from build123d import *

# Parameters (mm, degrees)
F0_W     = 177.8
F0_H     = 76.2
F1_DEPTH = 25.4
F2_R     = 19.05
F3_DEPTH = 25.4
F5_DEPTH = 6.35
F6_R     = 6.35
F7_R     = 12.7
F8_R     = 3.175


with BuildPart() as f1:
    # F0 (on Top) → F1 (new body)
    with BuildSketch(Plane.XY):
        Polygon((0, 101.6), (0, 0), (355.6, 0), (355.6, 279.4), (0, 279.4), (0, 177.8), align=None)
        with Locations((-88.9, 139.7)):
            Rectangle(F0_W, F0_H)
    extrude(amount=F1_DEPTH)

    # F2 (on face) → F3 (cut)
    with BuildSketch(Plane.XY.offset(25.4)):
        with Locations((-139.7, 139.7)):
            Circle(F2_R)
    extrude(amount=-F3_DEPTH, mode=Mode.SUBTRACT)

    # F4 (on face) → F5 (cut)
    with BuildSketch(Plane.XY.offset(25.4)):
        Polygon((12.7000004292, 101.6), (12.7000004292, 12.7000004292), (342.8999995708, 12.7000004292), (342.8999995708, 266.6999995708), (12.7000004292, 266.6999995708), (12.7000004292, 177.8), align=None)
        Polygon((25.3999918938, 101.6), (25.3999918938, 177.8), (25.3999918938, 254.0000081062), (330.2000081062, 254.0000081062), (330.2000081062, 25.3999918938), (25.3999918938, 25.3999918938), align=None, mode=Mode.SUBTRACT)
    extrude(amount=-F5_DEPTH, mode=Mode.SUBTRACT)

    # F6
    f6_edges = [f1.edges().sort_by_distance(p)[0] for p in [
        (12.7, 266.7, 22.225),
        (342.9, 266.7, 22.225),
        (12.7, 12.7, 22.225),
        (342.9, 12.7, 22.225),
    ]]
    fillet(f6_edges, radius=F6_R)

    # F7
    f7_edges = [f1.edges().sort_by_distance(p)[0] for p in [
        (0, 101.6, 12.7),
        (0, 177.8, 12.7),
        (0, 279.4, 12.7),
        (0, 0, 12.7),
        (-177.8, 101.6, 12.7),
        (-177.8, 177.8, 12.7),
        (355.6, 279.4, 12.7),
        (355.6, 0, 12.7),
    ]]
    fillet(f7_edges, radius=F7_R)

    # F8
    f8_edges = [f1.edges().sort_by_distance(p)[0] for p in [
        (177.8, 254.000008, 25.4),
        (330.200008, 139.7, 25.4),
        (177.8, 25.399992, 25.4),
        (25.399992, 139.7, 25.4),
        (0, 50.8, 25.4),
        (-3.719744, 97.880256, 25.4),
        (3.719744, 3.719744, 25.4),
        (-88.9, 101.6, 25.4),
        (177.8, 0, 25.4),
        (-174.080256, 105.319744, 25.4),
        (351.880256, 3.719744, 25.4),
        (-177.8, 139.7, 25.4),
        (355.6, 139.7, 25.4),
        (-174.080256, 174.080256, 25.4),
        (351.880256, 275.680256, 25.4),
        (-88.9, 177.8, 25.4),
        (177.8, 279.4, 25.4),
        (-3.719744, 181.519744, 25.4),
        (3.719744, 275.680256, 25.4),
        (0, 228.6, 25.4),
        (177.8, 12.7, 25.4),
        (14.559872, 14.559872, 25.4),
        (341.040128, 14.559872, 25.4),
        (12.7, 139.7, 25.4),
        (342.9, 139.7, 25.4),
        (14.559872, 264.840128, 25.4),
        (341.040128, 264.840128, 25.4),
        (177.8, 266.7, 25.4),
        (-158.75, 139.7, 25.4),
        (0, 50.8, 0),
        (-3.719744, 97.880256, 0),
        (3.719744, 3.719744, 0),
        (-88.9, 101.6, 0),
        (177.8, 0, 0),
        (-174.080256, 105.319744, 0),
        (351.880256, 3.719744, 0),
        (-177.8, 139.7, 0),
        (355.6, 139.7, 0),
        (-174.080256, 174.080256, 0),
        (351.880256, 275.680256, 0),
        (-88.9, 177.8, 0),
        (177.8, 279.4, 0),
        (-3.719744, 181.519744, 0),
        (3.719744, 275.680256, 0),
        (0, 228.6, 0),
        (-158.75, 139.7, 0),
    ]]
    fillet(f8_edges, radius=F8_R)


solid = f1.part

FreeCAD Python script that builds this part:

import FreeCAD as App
import Part
import Sketcher
Q = App.Units.Quantity


def edges_at(feature, points):
    """Names of the edges that pass closest to the given points."""
    edges = feature.Shape.Edges
    near = lambda p: min(range(len(edges)), key=lambda i: edges[i].distToShape(Part.Vertex(*p))[0])
    return sorted({f"Edge{near(p) + 1}" for p in points})


def add_polygon(sketch, points):
    """Adds a closed chain of lines whose ends are joined by coincident constraints."""
    first, n = sketch.GeometryCount, len(points)
    for a, b in zip(points, points[1:] + points[:1]):
        sketch.addGeometry(Part.LineSegment(App.Vector(*a, 0), App.Vector(*b, 0)), False)
    for i in range(n):
        sketch.addConstraint(Sketcher.Constraint("Coincident", first + i, 2, first + (i + 1) % n, 1))

doc = App.newDocument("Part")
body = doc.addObject("PartDesign::Body", "Body")

# Sketch on XY plane
sketch1 = body.newObject("Sketcher::SketchObject", "Sketch")
sketch1.AttachmentSupport = (doc.getObject("XY_Plane"), [""])
sketch1.MapMode = "FlatFace"
add_polygon(sketch1, [(0, 0), (356, 0), (356, 279), (0, 279), (0, 178), (-178, 178), (-178, 102), (0, 102)])  # lines 0-7
sketch1.addConstraint(Sketcher.Constraint("Horizontal", 0))
sketch1.addConstraint(Sketcher.Constraint("Vertical", 1))
sketch1.addConstraint(Sketcher.Constraint("Horizontal", 2))
sketch1.addConstraint(Sketcher.Constraint("Vertical", 3))
sketch1.addConstraint(Sketcher.Constraint("Horizontal", 4))
sketch1.addConstraint(Sketcher.Constraint("Vertical", 5))
sketch1.addConstraint(Sketcher.Constraint("Horizontal", 6))
sketch1.addConstraint(Sketcher.Constraint("Vertical", 7))
sketch1.addConstraint(Sketcher.Constraint("Coincident", 7, 2, -1, 1))
sketch1.addConstraint(Sketcher.Constraint("PointOnObject", 2, 2, -2))
sketch1.addConstraint(Sketcher.Constraint("Equal", 3, 7))
sketch1.addConstraint(Sketcher.Constraint("DistanceX", 0, 1, 0, 2, Q("14 in")))
sketch1.addConstraint(Sketcher.Constraint("DistanceX", 4, 2, 4, 1, Q("7 in")))
sketch1.addConstraint(Sketcher.Constraint("DistanceY", 1, 1, 1, 2, Q("11 in")))
sketch1.addConstraint(Sketcher.Constraint("DistanceY", 3, 2, 3, 1, Q("4 in")))
pad1 = body.newObject("PartDesign::Pad", "Pad")
pad1.Profile = sketch1
pad1.Length = Q("1 in")

# Sketch on XY plane
sketch2 = body.newObject("Sketcher::SketchObject", "Sketch001")
sketch2.AttachmentSupport = (doc.getObject("XY_Plane"), [""])
sketch2.MapMode = "FlatFace"
sketch2.AttachmentOffset = App.Placement(App.Vector(0, 0, 1 * 25.4), App.Rotation())
sketch2.addGeometry(Part.Circle(App.Vector(-140, 140, 0), App.Vector(0, 0, 1), 19), False)
sketch2.addConstraint(Sketcher.Constraint("Diameter", 0, Q("1.5 in")))
sketch2.addConstraint(Sketcher.Constraint("DistanceX", 0, 3, -1, 1, Q("5.5 in")))
sketch2.addConstraint(Sketcher.Constraint("DistanceY", -1, 1, 0, 3, Q("5.5 in")))
pocket1 = body.newObject("PartDesign::Pocket", "Pocket")
pocket1.Profile = sketch2
pocket1.Length = Q("1 in")

# Sketch on XY plane
sketch3 = body.newObject("Sketcher::SketchObject", "Sketch002")
sketch3.AttachmentSupport = (doc.getObject("XY_Plane"), [""])
sketch3.MapMode = "FlatFace"
sketch3.AttachmentOffset = App.Placement(App.Vector(0, 0, 1 * 25.4), App.Rotation())
add_polygon(sketch3, [(13, 13), (343, 13), (343, 267), (13, 267)])  # lines 0-3
add_polygon(sketch3, [(25, 25), (25, 254), (330, 254), (330, 25)])  # lines 4-7
sketch3.addConstraint(Sketcher.Constraint("Horizontal", 0))
sketch3.addConstraint(Sketcher.Constraint("Vertical", 1))
sketch3.addConstraint(Sketcher.Constraint("Horizontal", 2))
sketch3.addConstraint(Sketcher.Constraint("Vertical", 3))
sketch3.addConstraint(Sketcher.Constraint("Vertical", 4))
sketch3.addConstraint(Sketcher.Constraint("Horizontal", 5))
sketch3.addConstraint(Sketcher.Constraint("Vertical", 6))
sketch3.addConstraint(Sketcher.Constraint("Horizontal", 7))
sketch3.addConstraint(Sketcher.Constraint("DistanceX", 0, 1, 0, 2, Q("13 in")))
sketch3.addConstraint(Sketcher.Constraint("DistanceY", 1, 1, 1, 2, Q("10 in")))
sketch3.addConstraint(Sketcher.Constraint("DistanceX", -1, 1, 0, 2, Q("13.5 in")))
sketch3.addConstraint(Sketcher.Constraint("DistanceY", -1, 1, 0, 2, Q("0.5 in")))
sketch3.addConstraint(Sketcher.Constraint("DistanceX", 5, 1, 5, 2, 304.800016))
sketch3.addConstraint(Sketcher.Constraint("DistanceY", 4, 1, 4, 2, 228.600016))
sketch3.addConstraint(Sketcher.Constraint("DistanceX", -1, 1, 4, 2, 25.399992))
sketch3.addConstraint(Sketcher.Constraint("DistanceY", -1, 1, 4, 2, 254.000008))
pocket2 = body.newObject("PartDesign::Pocket", "Pocket001")
pocket2.Profile = sketch3
pocket2.Length = Q("0.25 in")
doc.recompute()

fillet = body.newObject("PartDesign::Fillet", "Fillet")
fillet.Base = (pocket2, edges_at(pocket2, [
    (12.7, 266.7, 22.225),
    (342.9, 266.7, 22.225),
    (12.7, 12.7, 22.225),
    (342.9, 12.7, 22.225),
]))
fillet.Radius = Q("0.25 in")
doc.recompute()

fillet2 = body.newObject("PartDesign::Fillet", "Fillet001")
fillet2.Base = (fillet, edges_at(fillet, [
    (0, 101.6, 12.7),
    (0, 177.8, 12.7),
    (0, 279.4, 12.7),
    (0, 0, 12.7),
    (-177.8, 101.6, 12.7),
    (-177.8, 177.8, 12.7),
    (355.6, 279.4, 12.7),
    (355.6, 0, 12.7),
]))
fillet2.Radius = Q("0.5 in")
doc.recompute()

fillet3 = body.newObject("PartDesign::Fillet", "Fillet002")
fillet3.Base = (fillet2, edges_at(fillet2, [
    (177.8, 254, 25.4),
    (330.2, 139.7, 25.4),
    (177.8, 25.4, 25.4),
    (25.4, 139.7, 25.4),
    (0, 50.8, 25.4),
    (-3.72, 97.88, 25.4),
    (3.72, 3.72, 25.4),
    (-88.9, 101.6, 25.4),
    (177.8, 0, 25.4),
    (-174.08, 105.32, 25.4),
    (351.88, 3.72, 25.4),
    (-177.8, 139.7, 25.4),
    (355.6, 139.7, 25.4),
    (-174.08, 174.08, 25.4),
    (351.88, 275.68, 25.4),
    (-88.9, 177.8, 25.4),
    (177.8, 279.4, 25.4),
    (-3.72, 181.52, 25.4),
    (3.72, 275.68, 25.4),
    (0, 228.6, 25.4),
    (177.8, 12.7, 25.4),
    (14.56, 14.56, 25.4),
    (341.04, 14.56, 25.4),
    (12.7, 139.7, 25.4),
    (342.9, 139.7, 25.4),
    (14.56, 264.84, 25.4),
    (341.04, 264.84, 25.4),
    (177.8, 266.7, 25.4),
    (-158.75, 139.7, 25.4),
    (0, 50.8, 0),
    (-3.72, 97.88, 0),
    (3.72, 3.72, 0),
    (-88.9, 101.6, 0),
    (177.8, 0, 0),
    (-174.08, 105.32, 0),
    (351.88, 3.72, 0),
    (-177.8, 139.7, 0),
    (355.6, 139.7, 0),
    (-174.08, 174.08, 0),
    (351.88, 275.68, 0),
    (-88.9, 177.8, 0),
    (177.8, 279.4, 0),
    (-3.72, 181.52, 0),
    (3.72, 275.68, 0),
    (0, 228.6, 0),
    (-158.75, 139.7, 0),
]))
fillet3.Radius = Q("0.125 in")

doc.recompute()
